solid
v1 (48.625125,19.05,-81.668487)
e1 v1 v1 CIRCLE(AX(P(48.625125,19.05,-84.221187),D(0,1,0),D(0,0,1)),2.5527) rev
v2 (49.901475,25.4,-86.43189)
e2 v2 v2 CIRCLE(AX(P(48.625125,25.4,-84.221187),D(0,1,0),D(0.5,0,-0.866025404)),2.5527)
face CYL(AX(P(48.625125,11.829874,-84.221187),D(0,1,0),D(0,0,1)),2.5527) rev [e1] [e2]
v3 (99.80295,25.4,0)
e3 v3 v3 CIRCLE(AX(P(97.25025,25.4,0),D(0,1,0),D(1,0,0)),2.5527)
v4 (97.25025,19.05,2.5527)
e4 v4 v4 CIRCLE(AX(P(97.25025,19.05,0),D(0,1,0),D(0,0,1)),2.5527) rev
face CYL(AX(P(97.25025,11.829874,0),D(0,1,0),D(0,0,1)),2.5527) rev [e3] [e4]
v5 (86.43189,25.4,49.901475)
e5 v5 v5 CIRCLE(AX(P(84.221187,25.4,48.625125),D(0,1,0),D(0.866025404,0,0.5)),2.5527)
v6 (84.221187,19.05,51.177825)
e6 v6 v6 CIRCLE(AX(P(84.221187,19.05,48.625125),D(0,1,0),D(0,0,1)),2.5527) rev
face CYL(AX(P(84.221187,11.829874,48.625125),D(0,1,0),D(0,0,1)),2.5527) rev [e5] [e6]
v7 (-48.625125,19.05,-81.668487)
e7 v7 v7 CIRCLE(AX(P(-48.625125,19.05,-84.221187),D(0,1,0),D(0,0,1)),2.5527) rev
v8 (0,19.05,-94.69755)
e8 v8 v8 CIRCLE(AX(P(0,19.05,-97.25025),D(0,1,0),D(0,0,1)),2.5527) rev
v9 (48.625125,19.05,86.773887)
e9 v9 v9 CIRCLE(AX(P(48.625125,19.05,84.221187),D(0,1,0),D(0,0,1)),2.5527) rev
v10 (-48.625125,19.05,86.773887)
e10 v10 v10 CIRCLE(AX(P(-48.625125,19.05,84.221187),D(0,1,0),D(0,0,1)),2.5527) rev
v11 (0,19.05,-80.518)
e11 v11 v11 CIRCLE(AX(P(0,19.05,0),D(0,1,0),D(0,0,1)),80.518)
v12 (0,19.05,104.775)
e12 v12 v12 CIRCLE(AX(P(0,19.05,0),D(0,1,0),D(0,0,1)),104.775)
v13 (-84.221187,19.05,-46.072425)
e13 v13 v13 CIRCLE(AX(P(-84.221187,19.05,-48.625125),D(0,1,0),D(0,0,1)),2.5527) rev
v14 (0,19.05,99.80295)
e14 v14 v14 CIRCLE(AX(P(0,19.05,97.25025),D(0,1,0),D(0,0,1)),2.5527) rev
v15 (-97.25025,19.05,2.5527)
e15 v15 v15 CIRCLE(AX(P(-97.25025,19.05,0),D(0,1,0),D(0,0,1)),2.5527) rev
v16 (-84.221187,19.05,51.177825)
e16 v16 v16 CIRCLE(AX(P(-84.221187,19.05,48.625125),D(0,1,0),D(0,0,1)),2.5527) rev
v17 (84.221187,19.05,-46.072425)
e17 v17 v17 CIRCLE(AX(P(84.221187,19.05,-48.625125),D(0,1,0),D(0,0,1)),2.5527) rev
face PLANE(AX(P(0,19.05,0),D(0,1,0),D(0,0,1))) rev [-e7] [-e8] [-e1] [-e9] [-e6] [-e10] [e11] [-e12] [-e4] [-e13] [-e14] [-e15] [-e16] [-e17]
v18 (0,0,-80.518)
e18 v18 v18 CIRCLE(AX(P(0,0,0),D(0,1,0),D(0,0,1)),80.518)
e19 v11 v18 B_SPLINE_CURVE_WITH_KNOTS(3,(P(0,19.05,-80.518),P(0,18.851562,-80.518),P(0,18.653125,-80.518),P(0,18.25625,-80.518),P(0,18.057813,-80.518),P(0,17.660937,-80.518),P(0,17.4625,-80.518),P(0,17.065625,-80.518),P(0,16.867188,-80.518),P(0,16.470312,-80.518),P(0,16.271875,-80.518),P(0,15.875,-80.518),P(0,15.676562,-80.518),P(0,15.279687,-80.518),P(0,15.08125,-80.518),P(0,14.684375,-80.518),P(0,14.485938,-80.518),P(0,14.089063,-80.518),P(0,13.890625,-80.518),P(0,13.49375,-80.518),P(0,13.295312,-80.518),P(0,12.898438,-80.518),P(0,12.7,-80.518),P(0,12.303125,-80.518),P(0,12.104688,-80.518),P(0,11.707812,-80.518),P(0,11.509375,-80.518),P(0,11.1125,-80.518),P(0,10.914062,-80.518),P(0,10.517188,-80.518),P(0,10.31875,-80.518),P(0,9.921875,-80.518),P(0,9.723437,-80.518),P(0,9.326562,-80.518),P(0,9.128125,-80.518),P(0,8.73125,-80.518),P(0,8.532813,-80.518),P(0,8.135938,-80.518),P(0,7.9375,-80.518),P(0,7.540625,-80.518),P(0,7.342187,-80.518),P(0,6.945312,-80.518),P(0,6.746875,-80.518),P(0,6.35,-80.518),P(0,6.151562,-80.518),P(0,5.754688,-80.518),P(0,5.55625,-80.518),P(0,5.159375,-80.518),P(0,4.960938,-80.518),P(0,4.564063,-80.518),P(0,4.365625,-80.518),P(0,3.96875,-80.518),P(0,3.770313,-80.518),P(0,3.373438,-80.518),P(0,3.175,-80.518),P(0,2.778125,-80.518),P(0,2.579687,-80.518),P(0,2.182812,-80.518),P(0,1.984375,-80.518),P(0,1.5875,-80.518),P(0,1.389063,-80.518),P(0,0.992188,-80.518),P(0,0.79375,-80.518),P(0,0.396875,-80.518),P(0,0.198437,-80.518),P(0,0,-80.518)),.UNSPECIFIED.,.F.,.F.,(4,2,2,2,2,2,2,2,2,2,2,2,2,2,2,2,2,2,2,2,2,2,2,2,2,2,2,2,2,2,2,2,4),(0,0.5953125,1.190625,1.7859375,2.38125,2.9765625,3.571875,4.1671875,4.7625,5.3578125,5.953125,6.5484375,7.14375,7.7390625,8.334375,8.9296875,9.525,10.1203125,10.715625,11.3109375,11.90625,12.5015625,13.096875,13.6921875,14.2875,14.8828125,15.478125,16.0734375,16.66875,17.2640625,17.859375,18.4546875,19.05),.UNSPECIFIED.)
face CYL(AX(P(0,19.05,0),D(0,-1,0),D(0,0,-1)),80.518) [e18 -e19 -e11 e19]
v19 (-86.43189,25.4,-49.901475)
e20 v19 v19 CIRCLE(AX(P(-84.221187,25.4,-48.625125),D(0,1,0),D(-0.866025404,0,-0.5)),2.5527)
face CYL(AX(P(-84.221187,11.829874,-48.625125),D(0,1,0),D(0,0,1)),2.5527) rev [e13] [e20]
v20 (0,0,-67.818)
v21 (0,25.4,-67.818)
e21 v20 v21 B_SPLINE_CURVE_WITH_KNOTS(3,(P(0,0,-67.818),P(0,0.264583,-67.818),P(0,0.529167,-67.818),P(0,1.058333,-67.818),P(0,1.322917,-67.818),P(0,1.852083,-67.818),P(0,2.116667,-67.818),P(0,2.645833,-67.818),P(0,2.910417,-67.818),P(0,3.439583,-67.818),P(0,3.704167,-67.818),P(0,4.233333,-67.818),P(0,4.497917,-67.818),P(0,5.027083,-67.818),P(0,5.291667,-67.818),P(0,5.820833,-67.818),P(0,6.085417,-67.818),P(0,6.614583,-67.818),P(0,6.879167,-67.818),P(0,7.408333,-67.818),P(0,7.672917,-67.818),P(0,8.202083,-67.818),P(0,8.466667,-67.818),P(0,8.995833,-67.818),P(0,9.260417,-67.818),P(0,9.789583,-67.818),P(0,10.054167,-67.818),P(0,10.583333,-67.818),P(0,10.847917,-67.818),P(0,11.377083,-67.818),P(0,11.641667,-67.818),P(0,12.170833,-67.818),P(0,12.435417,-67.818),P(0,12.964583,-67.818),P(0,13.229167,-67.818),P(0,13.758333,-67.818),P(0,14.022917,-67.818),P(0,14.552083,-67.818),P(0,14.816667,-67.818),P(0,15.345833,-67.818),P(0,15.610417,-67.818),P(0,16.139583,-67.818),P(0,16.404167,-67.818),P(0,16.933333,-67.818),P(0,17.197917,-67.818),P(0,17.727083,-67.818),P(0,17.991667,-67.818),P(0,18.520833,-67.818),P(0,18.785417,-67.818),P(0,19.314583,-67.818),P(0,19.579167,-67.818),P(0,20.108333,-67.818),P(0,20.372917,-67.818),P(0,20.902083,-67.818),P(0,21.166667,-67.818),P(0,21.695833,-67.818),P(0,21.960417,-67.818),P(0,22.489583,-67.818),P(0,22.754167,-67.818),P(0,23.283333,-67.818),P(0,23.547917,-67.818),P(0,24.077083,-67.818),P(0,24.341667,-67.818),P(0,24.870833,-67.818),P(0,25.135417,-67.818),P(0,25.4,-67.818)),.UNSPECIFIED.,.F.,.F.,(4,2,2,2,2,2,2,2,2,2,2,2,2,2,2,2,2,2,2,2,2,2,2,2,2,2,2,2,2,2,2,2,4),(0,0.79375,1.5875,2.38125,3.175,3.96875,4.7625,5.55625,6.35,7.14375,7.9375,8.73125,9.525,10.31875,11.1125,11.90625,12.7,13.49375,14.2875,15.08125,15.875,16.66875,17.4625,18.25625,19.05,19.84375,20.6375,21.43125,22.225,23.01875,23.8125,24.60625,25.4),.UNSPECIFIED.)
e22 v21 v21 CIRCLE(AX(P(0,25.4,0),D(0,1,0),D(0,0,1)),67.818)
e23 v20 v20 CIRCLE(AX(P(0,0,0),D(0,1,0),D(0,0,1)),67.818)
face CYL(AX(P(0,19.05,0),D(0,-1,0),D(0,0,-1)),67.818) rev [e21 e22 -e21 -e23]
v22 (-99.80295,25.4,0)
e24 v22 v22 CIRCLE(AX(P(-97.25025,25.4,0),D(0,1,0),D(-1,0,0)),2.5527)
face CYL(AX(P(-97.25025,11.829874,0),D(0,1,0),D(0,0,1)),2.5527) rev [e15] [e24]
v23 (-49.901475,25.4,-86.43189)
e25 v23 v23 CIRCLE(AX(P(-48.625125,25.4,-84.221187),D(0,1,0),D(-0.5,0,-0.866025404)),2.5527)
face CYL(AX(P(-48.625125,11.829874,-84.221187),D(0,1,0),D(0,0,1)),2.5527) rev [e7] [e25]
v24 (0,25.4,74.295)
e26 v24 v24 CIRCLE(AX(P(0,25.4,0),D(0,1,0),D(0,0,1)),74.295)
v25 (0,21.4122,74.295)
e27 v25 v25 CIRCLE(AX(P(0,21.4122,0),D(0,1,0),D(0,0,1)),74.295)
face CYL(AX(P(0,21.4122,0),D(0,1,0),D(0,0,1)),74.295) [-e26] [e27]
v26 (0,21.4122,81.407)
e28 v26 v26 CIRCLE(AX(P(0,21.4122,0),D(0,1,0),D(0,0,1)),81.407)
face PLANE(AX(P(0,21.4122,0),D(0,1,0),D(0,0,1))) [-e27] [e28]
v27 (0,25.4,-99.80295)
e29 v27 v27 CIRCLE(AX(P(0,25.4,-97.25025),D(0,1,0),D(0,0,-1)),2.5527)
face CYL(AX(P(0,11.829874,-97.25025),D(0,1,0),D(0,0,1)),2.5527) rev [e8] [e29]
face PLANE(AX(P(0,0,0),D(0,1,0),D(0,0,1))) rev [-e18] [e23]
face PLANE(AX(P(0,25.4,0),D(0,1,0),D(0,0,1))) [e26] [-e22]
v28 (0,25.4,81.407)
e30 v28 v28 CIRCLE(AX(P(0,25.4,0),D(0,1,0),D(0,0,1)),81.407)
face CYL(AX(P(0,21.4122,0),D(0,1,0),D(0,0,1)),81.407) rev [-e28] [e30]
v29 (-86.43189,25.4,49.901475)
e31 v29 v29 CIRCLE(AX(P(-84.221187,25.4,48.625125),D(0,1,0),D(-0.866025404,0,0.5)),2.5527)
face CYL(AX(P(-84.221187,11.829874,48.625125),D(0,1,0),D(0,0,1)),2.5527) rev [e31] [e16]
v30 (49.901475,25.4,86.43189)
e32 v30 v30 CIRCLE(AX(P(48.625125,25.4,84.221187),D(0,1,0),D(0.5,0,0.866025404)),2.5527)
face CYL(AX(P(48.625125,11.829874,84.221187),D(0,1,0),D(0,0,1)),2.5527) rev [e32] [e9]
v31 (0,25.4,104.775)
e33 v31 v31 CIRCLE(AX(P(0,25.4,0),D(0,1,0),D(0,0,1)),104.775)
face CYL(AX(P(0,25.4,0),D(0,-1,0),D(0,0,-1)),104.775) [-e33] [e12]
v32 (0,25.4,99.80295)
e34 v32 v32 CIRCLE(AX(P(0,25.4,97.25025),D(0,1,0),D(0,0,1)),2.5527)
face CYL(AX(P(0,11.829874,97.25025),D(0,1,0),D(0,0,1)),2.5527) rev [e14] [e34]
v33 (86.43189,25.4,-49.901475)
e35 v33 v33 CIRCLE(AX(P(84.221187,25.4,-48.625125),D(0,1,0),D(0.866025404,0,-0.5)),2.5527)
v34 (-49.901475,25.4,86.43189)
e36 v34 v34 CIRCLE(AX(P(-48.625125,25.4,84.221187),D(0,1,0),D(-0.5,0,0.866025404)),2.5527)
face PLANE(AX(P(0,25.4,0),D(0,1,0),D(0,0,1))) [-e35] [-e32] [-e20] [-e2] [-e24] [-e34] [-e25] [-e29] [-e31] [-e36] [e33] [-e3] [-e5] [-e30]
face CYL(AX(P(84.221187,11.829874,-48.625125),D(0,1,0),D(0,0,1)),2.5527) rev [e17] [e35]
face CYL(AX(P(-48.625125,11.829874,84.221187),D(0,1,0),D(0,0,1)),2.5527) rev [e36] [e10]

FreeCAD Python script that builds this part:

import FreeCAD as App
import Part
import Sketcher
Q = App.Units.Quantity

doc = App.newDocument("Part")
body = doc.addObject("PartDesign::Body", "Body")

# Sketch on XZ plane
sketch1 = body.newObject("Sketcher::SketchObject", "Sketch")
sketch1.AttachmentSupport = (doc.getObject("XZ_Plane"), [""])
sketch1.MapMode = "FlatFace"
sketch1.addGeometry(Part.Circle(App.Vector(0, 0, 0), App.Vector(0, 0, 1), 81), False)
sketch1.addGeometry(Part.Circle(App.Vector(0, 0, 0), App.Vector(0, 0, 1), 68), False)
sketch1.addConstraint(Sketcher.Constraint("Coincident", 0, 3, -1, 1))
sketch1.addConstraint(Sketcher.Constraint("Coincident", 1, 3, -1, 1))
sketch1.addConstraint(Sketcher.Constraint("Diameter", 0, Q("6.34 in")))
sketch1.addConstraint(Sketcher.Constraint("Diameter", 1, Q("5.34 in")))
pad1 = body.newObject("PartDesign::Pad", "Pad")
pad1.Profile = sketch1
pad1.Length = Q("0.75 in")
pad1.Reversed = True

# Sketch on XZ plane
sketch2 = body.newObject("Sketcher::SketchObject", "Sketch001")
sketch2.AttachmentSupport = (doc.getObject("XZ_Plane"), [""])
sketch2.MapMode = "FlatFace"
sketch2.AttachmentOffset = App.Placement(App.Vector(0, 0, -0.75 * 25.4), App.Rotation())
sketch2.addGeometry(Part.Circle(App.Vector(0, 0, 0), App.Vector(0, 0, 1), 105), False)
sketch2.addGeometry(Part.Circle(App.Vector(0, 0, 0), App.Vector(0, 0, 1), 68), False)
sketch2.addConstraint(Sketcher.Constraint("Coincident", 0, 3, -1, 1))
sketch2.addConstraint(Sketcher.Constraint("Coincident", 1, 3, -1, 1))
sketch2.addConstraint(Sketcher.Constraint("Diameter", 0, Q("8.25 in")))
sketch2.addConstraint(Sketcher.Constraint("Diameter", 1, Q("5.34 in")))
pad2 = body.newObject("PartDesign::Pad", "Pad001")
pad2.Profile = sketch2
pad2.Length = Q("0.25 in")
pad2.Reversed = True

# Sketch on XZ plane
sketch3 = body.newObject("Sketcher::SketchObject", "Sketch002")
sketch3.AttachmentSupport = (doc.getObject("XZ_Plane"), [""])
sketch3.MapMode = "FlatFace"
sketch3.AttachmentOffset = App.Placement(App.Vector(0, 0, -1 * 25.4), App.Rotation())
sketch3.addGeometry(Part.Circle(App.Vector(0, 0, 0), App.Vector(0, 0, 1), 81), False)
sketch3.addGeometry(Part.Circle(App.Vector(0, 0, 0), App.Vector(0, 0, 1), 74), False)
sketch3.addConstraint(Sketcher.Constraint("Coincident", 0, 3, -1, 1))
sketch3.addConstraint(Sketcher.Constraint("Coincident", 1, 3, -1, 1))
sketch3.addConstraint(Sketcher.Constraint("Diameter", 0, Q("6.41 in")))
sketch3.addConstraint(Sketcher.Constraint("Diameter", 1, Q("5.85 in")))
pocket1 = body.newObject("PartDesign::Pocket", "Pocket")
pocket1.Profile = sketch3
pocket1.Length = Q("0.157 in")
pocket1.Reversed = True

# Sketch on XZ plane
sketch4 = body.newObject("Sketcher::SketchObject", "Sketch003")
sketch4.AttachmentSupport = (doc.getObject("XZ_Plane"), [""])
sketch4.MapMode = "FlatFace"
sketch4.AttachmentOffset = App.Placement(App.Vector(0, 0, -1 * 25.4), App.Rotation())
sketch4.addGeometry(Part.Circle(App.Vector(0, 97.3, 0), App.Vector(0, 0, 1), 2.6), False)
sketch4.addConstraint(Sketcher.Constraint("PointOnObject", 0, 3, -2))
sketch4.addConstraint(Sketcher.Constraint("Diameter", 0, Q("0.201 in")))
sketch4.addConstraint(Sketcher.Constraint("DistanceY", -1, 1, 0, 3, Q("97.25025 mm")))
pocket2 = body.newObject("PartDesign::Pocket", "Pocket001")
pocket2.Profile = sketch4
pocket2.Length = Q("0.25 in")
pocket2.Reversed = True
doc.recompute()

polarpattern = body.newObject("PartDesign::PolarPattern", "PolarPattern")
polarpattern.Originals = [pocket2]
polarpattern.Axis = (doc.getObject("Y_Axis"), [""])
polarpattern.Angle = 360
polarpattern.Occurrences = 12
body.Tip = polarpattern

doc.recompute()
